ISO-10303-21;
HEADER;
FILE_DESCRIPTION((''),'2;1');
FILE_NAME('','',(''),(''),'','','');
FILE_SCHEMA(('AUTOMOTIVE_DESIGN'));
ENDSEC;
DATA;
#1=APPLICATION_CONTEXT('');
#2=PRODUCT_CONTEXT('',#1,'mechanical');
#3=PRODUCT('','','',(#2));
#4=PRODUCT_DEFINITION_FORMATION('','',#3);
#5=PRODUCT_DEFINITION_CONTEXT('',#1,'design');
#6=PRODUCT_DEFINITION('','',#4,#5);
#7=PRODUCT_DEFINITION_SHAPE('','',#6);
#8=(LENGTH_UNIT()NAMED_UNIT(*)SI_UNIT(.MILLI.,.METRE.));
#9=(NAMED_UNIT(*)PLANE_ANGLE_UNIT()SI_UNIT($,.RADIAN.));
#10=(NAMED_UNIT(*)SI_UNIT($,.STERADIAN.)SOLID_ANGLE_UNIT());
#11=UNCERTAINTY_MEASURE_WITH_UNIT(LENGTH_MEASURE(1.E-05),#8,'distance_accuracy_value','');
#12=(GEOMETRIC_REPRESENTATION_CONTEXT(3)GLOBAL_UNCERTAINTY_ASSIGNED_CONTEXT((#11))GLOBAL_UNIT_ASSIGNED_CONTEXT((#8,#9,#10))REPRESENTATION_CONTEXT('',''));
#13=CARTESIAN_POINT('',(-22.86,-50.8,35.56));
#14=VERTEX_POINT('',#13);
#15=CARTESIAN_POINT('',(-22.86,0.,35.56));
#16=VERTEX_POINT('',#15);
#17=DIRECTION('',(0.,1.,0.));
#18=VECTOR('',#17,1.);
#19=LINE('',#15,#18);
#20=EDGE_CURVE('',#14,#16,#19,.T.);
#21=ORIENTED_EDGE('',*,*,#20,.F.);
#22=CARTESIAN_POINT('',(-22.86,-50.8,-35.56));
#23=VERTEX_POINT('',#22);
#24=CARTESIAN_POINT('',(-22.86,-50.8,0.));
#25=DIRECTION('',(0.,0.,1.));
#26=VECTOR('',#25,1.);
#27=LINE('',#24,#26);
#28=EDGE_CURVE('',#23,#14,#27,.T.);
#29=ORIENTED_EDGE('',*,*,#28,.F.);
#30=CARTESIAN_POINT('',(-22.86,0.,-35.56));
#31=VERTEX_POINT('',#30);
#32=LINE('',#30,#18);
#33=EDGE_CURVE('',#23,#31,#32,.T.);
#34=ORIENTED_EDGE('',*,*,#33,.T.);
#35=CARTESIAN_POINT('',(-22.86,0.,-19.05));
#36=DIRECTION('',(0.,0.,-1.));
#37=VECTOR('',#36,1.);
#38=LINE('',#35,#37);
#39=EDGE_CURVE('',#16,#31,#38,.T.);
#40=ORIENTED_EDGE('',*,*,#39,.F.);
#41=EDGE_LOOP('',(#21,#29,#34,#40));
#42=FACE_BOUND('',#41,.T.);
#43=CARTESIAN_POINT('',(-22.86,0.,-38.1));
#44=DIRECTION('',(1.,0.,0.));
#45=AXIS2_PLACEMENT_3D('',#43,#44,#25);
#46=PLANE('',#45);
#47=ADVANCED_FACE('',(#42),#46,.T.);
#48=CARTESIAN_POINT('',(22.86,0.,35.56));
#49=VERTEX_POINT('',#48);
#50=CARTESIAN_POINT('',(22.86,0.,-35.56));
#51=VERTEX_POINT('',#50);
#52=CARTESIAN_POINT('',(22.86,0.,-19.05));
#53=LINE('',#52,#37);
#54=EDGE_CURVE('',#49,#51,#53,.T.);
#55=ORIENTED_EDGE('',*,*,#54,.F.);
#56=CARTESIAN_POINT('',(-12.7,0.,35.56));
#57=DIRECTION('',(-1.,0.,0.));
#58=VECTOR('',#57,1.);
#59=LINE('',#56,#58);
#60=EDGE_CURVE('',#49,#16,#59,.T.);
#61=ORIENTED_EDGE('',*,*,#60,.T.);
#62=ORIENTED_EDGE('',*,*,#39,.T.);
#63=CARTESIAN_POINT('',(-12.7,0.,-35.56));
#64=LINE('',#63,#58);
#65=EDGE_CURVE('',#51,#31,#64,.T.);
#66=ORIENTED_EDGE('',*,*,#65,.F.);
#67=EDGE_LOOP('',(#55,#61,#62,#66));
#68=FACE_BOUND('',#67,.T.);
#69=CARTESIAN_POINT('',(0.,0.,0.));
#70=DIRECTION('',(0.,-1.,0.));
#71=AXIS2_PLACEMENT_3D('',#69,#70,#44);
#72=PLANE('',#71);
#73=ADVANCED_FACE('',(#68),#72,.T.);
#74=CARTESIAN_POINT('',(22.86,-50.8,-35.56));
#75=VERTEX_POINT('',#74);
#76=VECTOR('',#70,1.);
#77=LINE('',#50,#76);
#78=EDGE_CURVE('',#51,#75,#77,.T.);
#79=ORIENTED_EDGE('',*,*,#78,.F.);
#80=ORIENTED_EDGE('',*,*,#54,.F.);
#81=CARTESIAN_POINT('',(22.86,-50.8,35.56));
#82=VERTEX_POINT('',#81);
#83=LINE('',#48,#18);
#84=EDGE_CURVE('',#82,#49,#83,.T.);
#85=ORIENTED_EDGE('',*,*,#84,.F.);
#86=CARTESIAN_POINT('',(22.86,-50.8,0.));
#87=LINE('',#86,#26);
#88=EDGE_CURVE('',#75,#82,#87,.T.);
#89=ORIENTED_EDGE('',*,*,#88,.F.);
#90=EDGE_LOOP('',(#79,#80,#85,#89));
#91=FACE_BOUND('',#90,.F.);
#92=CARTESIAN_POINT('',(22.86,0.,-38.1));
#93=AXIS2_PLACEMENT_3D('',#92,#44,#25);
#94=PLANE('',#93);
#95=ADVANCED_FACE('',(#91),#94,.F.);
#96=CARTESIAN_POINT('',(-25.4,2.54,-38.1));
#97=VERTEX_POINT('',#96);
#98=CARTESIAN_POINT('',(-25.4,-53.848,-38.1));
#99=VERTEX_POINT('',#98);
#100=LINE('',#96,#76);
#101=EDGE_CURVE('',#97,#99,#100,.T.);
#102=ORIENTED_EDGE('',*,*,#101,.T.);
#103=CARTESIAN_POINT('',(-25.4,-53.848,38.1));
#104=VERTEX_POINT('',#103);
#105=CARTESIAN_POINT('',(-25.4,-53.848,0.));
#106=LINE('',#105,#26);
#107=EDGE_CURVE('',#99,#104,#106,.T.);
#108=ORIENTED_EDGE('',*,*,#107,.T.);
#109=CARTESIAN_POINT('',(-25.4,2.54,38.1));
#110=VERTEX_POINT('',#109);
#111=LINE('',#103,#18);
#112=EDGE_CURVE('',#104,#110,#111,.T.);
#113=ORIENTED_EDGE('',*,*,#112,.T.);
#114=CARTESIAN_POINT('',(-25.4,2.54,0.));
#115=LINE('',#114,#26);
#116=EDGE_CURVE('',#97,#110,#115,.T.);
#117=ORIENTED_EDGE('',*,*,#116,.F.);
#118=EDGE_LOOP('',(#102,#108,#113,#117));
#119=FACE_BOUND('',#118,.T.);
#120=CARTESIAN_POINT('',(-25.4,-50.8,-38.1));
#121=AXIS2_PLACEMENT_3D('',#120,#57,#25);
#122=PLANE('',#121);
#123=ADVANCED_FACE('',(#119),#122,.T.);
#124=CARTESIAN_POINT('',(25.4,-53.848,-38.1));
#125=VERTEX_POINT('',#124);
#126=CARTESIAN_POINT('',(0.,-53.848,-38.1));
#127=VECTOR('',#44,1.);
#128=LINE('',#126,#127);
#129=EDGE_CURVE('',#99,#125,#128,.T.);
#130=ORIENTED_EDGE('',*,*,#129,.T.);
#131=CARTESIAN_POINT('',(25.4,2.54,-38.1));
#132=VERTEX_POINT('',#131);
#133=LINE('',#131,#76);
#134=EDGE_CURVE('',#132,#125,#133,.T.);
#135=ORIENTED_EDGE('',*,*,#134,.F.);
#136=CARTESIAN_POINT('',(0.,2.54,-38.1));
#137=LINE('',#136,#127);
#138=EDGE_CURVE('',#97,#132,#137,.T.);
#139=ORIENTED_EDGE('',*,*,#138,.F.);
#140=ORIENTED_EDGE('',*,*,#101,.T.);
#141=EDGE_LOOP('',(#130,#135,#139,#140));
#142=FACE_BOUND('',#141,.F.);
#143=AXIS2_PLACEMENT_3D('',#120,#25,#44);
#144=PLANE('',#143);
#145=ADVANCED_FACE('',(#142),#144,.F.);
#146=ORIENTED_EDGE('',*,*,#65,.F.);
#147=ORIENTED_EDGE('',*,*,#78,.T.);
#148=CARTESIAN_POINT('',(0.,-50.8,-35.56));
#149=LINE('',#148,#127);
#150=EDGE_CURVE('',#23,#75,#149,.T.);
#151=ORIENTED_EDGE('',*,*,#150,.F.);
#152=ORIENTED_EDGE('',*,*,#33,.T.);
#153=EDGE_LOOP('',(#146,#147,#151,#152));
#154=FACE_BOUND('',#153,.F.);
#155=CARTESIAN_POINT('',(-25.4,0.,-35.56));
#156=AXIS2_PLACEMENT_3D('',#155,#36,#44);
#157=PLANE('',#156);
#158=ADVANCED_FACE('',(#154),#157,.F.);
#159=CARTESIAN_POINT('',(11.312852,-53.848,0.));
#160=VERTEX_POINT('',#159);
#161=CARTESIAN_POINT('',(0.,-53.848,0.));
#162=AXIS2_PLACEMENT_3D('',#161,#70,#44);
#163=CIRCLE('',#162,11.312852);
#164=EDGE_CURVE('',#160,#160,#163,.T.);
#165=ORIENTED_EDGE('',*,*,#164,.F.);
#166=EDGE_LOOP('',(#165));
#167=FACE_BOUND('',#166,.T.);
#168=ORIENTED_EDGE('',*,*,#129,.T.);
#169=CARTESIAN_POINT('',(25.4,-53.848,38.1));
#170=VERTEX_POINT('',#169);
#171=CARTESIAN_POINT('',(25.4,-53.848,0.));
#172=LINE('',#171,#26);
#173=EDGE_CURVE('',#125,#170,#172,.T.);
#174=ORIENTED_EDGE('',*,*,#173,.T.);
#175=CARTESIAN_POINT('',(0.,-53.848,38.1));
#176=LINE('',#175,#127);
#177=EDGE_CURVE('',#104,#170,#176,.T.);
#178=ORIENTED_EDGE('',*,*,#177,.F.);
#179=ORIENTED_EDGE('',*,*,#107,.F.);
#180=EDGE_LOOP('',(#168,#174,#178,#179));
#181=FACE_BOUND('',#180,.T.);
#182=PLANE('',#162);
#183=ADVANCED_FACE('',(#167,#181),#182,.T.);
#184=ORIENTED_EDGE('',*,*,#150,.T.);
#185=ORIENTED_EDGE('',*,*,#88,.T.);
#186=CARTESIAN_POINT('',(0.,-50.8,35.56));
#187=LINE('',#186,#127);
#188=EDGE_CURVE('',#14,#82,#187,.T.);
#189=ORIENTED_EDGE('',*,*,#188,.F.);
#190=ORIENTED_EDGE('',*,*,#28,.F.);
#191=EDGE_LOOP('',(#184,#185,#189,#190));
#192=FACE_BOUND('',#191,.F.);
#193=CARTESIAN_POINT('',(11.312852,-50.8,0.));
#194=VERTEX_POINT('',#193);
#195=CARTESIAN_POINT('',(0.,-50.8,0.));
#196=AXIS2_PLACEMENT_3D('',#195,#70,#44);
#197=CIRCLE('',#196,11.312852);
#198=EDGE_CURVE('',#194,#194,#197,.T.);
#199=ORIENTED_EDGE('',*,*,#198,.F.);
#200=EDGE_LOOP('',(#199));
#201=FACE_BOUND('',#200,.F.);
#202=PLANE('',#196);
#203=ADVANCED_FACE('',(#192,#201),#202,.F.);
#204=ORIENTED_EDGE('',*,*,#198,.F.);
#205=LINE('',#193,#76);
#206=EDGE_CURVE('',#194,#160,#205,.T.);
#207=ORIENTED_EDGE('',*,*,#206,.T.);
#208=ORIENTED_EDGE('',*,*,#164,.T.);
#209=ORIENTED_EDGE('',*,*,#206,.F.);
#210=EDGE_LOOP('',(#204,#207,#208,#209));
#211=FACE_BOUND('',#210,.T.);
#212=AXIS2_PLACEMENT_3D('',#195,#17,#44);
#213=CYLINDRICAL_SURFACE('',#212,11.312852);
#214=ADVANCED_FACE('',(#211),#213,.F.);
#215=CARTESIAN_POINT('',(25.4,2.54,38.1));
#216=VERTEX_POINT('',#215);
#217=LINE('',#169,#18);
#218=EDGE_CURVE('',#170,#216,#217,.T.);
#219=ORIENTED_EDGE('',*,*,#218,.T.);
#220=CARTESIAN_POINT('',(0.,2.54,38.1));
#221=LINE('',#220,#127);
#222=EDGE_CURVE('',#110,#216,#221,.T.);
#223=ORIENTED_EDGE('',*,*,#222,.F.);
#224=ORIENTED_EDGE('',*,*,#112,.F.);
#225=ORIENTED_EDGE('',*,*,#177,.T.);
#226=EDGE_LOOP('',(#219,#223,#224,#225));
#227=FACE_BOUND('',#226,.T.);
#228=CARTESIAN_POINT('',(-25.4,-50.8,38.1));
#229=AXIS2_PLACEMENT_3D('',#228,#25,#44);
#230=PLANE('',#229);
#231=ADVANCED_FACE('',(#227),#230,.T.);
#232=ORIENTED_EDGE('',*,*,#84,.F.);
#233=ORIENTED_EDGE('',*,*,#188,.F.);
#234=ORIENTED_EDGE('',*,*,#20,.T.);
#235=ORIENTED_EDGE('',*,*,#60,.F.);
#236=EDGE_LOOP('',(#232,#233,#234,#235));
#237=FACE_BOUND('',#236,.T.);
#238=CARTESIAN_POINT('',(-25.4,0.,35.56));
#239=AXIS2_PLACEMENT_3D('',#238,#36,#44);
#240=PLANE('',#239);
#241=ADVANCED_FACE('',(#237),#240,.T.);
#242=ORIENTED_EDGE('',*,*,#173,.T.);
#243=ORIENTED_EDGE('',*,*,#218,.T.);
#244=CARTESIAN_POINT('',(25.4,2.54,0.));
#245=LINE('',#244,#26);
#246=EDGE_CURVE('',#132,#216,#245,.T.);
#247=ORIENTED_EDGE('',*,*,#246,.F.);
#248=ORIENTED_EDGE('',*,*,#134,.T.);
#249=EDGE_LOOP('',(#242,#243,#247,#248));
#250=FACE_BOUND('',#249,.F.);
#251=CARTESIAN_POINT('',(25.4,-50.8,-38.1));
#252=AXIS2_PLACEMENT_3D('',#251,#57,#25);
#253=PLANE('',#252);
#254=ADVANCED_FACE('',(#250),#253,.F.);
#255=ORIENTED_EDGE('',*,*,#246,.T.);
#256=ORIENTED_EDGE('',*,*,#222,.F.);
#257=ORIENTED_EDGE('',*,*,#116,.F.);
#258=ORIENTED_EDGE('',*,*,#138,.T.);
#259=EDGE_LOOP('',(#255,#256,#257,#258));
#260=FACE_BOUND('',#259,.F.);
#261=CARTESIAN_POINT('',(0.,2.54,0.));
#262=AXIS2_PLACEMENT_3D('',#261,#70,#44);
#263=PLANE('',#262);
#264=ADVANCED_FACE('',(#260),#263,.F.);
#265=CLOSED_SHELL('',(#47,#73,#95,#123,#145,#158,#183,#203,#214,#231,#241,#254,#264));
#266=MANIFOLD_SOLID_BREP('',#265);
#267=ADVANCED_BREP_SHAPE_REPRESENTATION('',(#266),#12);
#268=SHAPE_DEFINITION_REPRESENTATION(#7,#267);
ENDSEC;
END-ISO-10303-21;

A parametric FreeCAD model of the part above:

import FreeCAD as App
import Part
import Sketcher
from FreeCAD import Vector
Q = App.Units.Quantity


def faces_at(feature, points):
    """Names of the faces that lie closest to the given points."""
    faces = feature.Shape.Faces
    near = lambda p: min(range(len(faces)), key=lambda i: faces[i].distToShape(Part.Vertex(*p))[0])
    return sorted({f"Face{near(p) + 1}" for p in points})

doc = App.newDocument("Part")
body = doc.addObject("PartDesign::Body", "Body")

# Sketch on XZ plane
sketch1 = body.newObject("Sketcher::SketchObject", "Sketch")
sketch1.AttachmentSupport = (doc.getObject("XZ_Plane"), [""])
sketch1.MapMode = "FlatFace"
sketch1.addGeometry([
    Part.LineSegment(Vector(-25, 38, 0), Vector(-25, -38, 0)),
    Part.LineSegment(Vector(-25, -38, 0), Vector(25, -38, 0)),
    Part.LineSegment(Vector(25, -38, 0), Vector(25, 38, 0)),
    Part.LineSegment(Vector(25, 38, 0), Vector(-25, 38, 0)),
], False)
sketch1.addConstraint([
    Sketcher.Constraint("Coincident", 0, 2, 1, 1),
    Sketcher.Constraint("Coincident", 1, 2, 2, 1),
    Sketcher.Constraint("Coincident", 2, 2, 3, 1),
    Sketcher.Constraint("Coincident", 3, 2, 0, 1),
    Sketcher.Constraint("Vertical", 0),
    Sketcher.Constraint("Horizontal", 1),
    Sketcher.Constraint("Vertical", 2),
    Sketcher.Constraint("Horizontal", 3),
    Sketcher.Constraint("Symmetric", 0, 2, 2, 2, -1, 1),
    Sketcher.Constraint("DistanceX", 1, 1, 1, 2, Q("2 in")),
    Sketcher.Constraint("DistanceY", 0, 2, 0, 1, Q("3 in")),
])
pad1 = body.newObject("PartDesign::Pad", "Pad")
pad1.Profile = sketch1
pad1.Length = Q("2 in")

# Sketch on XZ plane
sketch2 = body.newObject("Sketcher::SketchObject", "Sketch001")
sketch2.AttachmentSupport = (doc.getObject("XZ_Plane"), [""])
sketch2.MapMode = "FlatFace"
sketch2.addGeometry([
    Part.LineSegment(Vector(-25, 38, 0), Vector(-25, -38, 0)),
    Part.LineSegment(Vector(-25, -38, 0), Vector(25, -38, 0)),
    Part.LineSegment(Vector(25, -38, 0), Vector(25, 38, 0)),
    Part.LineSegment(Vector(25, 38, 0), Vector(-25, 38, 0)),
], False)
sketch2.addConstraint([
    Sketcher.Constraint("Coincident", 0, 2, 1, 1),
    Sketcher.Constraint("Coincident", 1, 2, 2, 1),
    Sketcher.Constraint("Coincident", 2, 2, 3, 1),
    Sketcher.Constraint("Coincident", 3, 2, 0, 1),
    Sketcher.Constraint("Vertical", 0),
    Sketcher.Constraint("Horizontal", 1),
    Sketcher.Constraint("Vertical", 2),
    Sketcher.Constraint("Horizontal", 3),
    Sketcher.Constraint("Symmetric", 0, 2, 2, 2, -1, 1),
    Sketcher.Constraint("DistanceX", 1, 1, 1, 2, Q("2 in")),
    Sketcher.Constraint("DistanceY", 0, 2, 0, 1, Q("3 in")),
])
pad2 = body.newObject("PartDesign::Pad", "Pad001")
pad2.Profile = sketch2
pad2.Length = Q("0.1 in")
pad2.Reversed = True
doc.recompute()

thickness = body.newObject("PartDesign::Thickness", "Thickness")
thickness.Base = (pad2, faces_at(pad2, [(0, -50.8, 0)]))
thickness.Value = Q("0.1 in")
thickness.Reversed = True
thickness.Join = "Arc"

# Sketch on XZ plane
sketch3 = body.newObject("Sketcher::SketchObject", "Sketch002")
sketch3.AttachmentSupport = (doc.getObject("XZ_Plane"), [""])
sketch3.MapMode = "FlatFace"
sketch3.AttachmentOffset = App.Placement(Vector(0, 0, 2 * 25.4), App.Rotation())
sketch3.addGeometry([
    Part.LineSegment(Vector(-25, 38, 0), Vector(-25, -38, 0)),  # 0
    Part.LineSegment(Vector(-25, -38, 0), Vector(25, -38, 0)),  # 1
    Part.LineSegment(Vector(25, -38, 0), Vector(25, 38, 0)),  # 2
    Part.LineSegment(Vector(25, 38, 0), Vector(-25, 38, 0)),  # 3
    Part.Circle(Vector(0, 0, 0), Vector(0, 0, 1), 11),  # 4
], False)
sketch3.addConstraint([
    Sketcher.Constraint("Coincident", 0, 2, 1, 1),
    Sketcher.Constraint("Coincident", 1, 2, 2, 1),
    Sketcher.Constraint("Coincident", 2, 2, 3, 1),
    Sketcher.Constraint("Coincident", 3, 2, 0, 1),
    Sketcher.Constraint("Vertical", 0),
    Sketcher.Constraint("Horizontal", 1),
    Sketcher.Constraint("Vertical", 2),
    Sketcher.Constraint("Horizontal", 3),
    Sketcher.Constraint("Coincident", 4, 3, -1, 1),
    Sketcher.Constraint("Symmetric", 0, 2, 2, 2, -1, 1),
    Sketcher.Constraint("DistanceX", 1, 1, 1, 2, Q("2 in")),
    Sketcher.Constraint("DistanceY", 0, 2, 0, 1, Q("3 in")),
    Sketcher.Constraint("Diameter", 4, 22.625704),
])
pad3 = body.newObject("PartDesign::Pad", "Pad002")
pad3.Profile = sketch3
pad3.Length = Q("0.12 in")

doc.recompute()
